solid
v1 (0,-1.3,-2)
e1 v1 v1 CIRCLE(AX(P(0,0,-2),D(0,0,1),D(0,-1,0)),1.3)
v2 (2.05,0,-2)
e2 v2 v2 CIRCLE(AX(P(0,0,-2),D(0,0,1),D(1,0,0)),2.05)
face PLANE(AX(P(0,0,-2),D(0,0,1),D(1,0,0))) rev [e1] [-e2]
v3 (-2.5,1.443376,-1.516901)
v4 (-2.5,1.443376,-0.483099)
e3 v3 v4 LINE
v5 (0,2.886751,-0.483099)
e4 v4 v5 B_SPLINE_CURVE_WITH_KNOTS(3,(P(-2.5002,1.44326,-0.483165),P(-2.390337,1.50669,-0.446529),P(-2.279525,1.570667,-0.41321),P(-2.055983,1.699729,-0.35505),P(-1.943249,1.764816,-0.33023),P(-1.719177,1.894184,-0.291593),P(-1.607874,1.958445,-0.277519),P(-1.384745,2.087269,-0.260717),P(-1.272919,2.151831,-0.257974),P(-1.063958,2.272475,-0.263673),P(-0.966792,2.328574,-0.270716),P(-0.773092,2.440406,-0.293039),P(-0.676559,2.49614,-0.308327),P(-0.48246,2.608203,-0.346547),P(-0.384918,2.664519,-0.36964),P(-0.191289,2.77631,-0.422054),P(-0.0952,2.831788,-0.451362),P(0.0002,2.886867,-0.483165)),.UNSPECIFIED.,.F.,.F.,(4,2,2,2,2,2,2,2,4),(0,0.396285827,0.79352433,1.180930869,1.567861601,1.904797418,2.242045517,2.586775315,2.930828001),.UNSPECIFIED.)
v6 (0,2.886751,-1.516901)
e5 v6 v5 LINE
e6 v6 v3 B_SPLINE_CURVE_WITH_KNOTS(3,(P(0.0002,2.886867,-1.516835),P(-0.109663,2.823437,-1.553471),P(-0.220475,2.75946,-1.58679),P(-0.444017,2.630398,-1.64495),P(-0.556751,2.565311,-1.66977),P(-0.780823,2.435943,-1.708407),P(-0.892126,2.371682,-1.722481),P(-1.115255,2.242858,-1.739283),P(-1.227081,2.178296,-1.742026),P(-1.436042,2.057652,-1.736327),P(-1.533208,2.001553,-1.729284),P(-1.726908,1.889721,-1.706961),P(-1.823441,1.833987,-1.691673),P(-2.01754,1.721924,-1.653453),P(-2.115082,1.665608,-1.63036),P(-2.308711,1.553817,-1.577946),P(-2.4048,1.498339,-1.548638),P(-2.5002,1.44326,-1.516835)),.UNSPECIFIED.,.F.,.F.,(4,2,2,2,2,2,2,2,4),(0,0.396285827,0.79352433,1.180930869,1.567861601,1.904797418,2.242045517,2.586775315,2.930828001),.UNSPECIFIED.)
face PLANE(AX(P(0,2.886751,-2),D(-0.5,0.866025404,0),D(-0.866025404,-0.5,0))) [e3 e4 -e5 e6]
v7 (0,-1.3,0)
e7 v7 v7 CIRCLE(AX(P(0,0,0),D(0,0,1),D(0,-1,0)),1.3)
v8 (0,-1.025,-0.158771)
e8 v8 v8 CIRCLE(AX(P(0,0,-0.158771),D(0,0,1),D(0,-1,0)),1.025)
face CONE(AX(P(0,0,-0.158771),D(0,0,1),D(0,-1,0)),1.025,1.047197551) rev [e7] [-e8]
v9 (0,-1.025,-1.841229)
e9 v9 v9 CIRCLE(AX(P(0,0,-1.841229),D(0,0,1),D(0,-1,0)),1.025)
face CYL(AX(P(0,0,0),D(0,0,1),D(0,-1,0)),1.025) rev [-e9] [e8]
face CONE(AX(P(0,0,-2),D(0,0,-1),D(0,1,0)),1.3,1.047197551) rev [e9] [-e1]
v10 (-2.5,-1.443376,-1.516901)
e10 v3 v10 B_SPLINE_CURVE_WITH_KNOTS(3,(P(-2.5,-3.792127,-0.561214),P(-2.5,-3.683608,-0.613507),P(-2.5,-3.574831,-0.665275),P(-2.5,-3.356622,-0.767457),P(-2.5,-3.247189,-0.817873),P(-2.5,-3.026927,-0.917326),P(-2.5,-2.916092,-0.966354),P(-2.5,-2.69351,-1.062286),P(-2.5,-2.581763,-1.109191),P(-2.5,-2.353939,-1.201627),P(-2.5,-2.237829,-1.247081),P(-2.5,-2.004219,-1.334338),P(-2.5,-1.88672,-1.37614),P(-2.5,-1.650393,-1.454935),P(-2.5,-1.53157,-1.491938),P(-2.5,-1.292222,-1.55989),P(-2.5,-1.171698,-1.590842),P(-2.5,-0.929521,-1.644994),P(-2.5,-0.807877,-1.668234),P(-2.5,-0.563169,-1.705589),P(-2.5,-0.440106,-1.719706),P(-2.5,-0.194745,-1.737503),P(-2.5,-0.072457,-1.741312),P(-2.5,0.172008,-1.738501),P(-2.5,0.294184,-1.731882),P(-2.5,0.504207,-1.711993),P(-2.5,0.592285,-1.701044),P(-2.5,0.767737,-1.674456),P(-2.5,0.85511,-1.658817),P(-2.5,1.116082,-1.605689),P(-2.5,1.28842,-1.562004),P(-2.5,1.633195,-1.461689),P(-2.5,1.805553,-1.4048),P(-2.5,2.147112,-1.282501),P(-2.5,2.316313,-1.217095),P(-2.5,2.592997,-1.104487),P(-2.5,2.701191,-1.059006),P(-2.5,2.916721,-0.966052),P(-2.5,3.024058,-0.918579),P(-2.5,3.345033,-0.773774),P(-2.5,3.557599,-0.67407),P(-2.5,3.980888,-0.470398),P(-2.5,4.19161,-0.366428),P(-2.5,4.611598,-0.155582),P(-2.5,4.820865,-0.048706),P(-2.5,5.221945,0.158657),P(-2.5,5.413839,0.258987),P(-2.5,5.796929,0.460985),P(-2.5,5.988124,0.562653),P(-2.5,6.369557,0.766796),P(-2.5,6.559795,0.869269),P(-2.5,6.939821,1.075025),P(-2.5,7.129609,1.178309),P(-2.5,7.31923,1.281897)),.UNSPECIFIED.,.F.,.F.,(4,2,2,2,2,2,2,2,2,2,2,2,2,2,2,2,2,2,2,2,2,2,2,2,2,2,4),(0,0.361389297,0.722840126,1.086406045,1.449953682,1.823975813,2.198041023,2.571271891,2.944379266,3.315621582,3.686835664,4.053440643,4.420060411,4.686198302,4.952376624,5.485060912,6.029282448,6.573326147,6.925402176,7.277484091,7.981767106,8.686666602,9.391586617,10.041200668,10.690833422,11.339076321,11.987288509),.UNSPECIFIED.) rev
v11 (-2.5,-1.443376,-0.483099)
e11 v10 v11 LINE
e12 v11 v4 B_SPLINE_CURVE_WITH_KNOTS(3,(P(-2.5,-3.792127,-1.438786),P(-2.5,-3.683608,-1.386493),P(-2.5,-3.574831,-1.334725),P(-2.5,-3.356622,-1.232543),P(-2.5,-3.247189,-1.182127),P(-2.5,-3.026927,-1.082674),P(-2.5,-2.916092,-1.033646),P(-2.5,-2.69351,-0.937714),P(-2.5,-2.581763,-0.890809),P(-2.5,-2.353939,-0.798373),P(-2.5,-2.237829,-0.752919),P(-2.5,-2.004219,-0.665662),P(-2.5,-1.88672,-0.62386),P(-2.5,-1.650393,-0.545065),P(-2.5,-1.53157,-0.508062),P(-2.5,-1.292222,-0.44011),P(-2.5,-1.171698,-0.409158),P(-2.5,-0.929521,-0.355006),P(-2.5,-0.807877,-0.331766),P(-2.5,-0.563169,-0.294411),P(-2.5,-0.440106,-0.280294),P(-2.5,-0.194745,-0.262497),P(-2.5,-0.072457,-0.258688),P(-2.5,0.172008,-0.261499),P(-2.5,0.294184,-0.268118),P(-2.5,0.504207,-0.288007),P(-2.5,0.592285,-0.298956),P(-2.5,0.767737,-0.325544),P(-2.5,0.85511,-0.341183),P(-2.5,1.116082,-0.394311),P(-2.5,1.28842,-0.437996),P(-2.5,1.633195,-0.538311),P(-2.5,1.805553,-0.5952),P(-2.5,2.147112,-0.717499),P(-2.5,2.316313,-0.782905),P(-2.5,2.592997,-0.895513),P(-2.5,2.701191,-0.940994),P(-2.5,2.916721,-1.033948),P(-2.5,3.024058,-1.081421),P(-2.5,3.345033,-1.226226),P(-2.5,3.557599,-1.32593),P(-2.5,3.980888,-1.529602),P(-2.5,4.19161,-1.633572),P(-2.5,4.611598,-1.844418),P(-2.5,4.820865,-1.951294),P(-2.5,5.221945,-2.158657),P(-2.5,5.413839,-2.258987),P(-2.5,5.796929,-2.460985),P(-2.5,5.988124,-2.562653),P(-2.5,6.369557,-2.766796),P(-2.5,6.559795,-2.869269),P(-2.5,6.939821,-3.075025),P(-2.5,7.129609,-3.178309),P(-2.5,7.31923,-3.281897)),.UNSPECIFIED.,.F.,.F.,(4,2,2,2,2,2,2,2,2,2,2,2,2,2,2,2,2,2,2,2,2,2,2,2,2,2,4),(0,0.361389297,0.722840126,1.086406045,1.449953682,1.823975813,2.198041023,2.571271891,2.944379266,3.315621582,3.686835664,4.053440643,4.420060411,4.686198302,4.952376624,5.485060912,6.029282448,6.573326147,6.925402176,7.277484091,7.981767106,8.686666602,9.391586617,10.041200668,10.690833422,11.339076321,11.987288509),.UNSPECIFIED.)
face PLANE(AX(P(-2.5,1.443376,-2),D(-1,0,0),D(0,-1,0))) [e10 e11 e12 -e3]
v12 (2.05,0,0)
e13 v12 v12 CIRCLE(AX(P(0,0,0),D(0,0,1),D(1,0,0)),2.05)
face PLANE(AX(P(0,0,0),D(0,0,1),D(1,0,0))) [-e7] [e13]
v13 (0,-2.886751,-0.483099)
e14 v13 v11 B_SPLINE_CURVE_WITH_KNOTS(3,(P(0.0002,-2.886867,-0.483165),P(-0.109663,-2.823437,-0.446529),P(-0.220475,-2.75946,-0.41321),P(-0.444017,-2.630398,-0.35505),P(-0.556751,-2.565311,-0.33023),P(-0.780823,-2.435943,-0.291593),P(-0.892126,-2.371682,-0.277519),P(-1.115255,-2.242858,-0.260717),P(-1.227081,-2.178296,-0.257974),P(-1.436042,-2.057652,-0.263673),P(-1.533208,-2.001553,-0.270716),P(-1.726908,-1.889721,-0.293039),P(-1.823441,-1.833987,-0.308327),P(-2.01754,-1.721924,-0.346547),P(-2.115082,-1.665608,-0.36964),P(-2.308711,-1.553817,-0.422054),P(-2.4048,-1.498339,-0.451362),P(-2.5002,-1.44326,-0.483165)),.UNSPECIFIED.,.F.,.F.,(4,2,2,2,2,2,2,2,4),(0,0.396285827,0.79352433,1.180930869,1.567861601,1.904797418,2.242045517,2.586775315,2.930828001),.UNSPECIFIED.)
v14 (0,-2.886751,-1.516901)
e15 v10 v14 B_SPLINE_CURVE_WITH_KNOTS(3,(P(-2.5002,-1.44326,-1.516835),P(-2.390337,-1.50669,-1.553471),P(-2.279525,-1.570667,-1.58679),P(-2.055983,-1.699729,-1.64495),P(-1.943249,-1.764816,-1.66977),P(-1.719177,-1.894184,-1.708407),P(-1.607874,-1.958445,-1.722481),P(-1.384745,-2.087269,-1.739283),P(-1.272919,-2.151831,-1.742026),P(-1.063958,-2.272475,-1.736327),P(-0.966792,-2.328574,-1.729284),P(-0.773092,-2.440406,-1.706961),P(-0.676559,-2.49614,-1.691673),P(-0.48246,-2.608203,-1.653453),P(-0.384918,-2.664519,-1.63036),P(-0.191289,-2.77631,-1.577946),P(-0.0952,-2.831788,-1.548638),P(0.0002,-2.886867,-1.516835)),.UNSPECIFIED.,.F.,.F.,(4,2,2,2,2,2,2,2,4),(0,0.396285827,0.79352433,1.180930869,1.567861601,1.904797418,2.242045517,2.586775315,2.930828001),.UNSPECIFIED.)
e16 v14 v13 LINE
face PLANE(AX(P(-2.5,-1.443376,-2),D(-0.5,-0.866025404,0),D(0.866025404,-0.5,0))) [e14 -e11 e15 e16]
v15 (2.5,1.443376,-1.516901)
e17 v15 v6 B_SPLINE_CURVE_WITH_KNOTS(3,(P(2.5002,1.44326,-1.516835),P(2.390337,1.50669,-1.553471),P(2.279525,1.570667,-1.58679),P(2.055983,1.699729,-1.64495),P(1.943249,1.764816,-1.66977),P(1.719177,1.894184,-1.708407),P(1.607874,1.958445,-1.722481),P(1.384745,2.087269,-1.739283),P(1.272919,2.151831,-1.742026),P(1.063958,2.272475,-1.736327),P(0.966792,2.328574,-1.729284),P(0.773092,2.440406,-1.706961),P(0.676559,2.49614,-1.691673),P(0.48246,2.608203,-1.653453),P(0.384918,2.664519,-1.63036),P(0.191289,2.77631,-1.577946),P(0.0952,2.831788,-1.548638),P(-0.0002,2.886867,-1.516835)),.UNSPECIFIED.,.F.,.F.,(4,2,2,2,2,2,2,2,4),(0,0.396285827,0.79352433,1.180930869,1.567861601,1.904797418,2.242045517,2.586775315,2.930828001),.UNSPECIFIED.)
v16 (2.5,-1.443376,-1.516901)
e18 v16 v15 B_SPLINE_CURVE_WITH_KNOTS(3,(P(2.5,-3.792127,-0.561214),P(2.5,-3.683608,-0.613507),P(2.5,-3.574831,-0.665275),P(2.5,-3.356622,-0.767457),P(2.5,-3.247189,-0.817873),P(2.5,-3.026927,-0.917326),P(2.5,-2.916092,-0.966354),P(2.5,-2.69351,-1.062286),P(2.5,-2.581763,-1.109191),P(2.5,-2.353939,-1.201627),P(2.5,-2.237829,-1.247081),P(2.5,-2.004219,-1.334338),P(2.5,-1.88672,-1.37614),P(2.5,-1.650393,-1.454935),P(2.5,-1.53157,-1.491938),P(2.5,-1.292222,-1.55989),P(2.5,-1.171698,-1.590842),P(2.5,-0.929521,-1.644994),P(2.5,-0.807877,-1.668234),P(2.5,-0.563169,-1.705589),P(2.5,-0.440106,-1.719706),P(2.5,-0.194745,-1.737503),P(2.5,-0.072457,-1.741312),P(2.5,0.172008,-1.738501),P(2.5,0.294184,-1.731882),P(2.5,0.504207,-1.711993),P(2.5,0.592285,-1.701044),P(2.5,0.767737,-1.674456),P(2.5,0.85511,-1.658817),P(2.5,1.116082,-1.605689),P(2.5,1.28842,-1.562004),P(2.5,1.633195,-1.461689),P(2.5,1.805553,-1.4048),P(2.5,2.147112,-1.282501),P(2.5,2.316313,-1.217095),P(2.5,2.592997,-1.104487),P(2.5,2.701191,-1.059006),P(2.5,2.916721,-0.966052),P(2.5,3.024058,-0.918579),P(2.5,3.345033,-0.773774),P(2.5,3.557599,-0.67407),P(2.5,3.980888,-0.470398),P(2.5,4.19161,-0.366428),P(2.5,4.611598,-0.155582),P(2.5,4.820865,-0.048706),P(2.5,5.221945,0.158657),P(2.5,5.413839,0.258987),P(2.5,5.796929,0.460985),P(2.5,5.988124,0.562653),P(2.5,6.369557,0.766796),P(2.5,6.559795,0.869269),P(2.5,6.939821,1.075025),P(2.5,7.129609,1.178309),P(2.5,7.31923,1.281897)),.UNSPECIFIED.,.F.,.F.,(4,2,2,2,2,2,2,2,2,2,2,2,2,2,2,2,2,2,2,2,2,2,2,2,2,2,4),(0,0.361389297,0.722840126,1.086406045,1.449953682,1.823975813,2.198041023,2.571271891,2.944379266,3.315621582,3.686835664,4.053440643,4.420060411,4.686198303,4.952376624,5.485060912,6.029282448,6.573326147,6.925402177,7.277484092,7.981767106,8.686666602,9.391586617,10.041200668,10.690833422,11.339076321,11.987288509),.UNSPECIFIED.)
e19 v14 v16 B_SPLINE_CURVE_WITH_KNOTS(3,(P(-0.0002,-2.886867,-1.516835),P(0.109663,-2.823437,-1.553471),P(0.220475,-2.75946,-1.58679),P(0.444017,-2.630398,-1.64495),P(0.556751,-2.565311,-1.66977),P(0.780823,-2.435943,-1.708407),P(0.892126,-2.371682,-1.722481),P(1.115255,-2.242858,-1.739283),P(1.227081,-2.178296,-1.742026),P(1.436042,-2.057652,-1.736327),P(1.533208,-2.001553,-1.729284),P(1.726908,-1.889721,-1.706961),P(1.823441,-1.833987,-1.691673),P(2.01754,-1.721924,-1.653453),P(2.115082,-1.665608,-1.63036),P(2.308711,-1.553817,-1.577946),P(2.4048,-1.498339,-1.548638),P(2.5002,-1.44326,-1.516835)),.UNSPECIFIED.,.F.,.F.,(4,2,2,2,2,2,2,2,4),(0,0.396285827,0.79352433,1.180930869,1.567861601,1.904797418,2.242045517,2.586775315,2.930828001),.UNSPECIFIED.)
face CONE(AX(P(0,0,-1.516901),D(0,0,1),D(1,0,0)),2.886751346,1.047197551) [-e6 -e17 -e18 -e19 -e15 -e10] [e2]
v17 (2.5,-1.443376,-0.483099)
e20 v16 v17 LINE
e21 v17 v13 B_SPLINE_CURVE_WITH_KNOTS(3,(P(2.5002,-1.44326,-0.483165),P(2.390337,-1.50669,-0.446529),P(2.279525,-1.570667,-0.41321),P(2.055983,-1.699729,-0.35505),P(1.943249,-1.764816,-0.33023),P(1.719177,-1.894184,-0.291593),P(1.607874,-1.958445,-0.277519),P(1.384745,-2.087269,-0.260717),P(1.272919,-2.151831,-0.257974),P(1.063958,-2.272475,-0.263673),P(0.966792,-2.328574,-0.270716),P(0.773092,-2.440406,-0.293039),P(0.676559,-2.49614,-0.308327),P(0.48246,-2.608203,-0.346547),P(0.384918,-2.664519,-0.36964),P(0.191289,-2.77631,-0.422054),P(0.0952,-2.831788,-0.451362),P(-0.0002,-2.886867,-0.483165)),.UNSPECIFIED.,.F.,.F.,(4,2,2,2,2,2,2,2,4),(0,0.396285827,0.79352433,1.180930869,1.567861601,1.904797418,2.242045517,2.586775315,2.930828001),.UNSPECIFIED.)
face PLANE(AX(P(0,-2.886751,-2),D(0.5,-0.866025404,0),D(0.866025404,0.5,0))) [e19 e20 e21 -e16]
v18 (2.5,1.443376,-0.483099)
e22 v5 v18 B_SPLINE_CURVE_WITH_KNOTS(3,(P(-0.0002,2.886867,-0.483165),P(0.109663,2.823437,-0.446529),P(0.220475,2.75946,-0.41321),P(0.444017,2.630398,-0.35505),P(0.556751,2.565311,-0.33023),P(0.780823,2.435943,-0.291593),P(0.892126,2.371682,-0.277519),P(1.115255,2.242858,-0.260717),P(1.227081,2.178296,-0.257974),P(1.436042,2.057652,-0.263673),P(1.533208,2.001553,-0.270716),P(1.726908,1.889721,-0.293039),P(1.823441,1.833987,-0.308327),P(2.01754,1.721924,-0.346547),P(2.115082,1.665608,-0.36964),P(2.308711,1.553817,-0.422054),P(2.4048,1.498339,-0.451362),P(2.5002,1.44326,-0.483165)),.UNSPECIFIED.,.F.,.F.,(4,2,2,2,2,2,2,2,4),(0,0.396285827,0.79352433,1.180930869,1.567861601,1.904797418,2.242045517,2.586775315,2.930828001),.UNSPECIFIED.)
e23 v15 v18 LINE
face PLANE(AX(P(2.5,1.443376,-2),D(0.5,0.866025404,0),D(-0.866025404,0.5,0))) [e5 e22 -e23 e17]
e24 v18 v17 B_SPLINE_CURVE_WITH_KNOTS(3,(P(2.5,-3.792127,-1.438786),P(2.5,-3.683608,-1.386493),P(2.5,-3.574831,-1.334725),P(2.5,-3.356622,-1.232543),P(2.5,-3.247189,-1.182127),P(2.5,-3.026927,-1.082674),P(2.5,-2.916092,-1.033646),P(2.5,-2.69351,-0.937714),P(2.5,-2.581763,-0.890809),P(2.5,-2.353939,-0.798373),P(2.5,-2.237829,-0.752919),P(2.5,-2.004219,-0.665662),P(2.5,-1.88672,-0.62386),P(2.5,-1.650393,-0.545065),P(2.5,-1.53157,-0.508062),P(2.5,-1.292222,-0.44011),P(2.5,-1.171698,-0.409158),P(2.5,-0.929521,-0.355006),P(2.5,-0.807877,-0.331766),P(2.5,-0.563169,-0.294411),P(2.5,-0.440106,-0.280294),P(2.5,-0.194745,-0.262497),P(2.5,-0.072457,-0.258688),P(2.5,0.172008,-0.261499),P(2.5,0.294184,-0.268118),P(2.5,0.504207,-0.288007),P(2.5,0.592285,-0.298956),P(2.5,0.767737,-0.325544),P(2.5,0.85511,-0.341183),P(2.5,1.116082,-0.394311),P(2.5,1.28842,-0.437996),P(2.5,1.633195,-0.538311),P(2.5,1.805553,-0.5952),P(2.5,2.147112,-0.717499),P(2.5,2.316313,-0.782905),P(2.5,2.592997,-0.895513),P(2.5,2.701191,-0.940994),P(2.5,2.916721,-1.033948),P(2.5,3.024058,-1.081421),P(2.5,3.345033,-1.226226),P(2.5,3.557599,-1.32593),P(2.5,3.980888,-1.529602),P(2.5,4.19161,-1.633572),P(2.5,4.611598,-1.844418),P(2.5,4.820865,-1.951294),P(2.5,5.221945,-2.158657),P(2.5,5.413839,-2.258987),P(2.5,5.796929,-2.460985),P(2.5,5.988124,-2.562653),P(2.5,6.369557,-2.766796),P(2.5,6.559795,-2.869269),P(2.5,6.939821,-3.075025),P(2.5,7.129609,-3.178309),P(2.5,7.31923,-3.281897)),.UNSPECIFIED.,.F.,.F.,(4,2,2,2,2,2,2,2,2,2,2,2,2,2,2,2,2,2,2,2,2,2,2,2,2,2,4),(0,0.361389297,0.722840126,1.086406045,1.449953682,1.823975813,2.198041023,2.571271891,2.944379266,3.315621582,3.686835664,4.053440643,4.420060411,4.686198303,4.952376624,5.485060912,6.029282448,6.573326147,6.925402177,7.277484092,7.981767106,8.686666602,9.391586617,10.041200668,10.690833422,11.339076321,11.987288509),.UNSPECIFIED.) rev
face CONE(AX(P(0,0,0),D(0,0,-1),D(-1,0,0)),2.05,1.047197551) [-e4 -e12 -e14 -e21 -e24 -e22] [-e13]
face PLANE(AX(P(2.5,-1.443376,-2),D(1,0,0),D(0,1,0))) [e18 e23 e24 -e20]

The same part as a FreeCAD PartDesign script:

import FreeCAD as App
import Part
import Sketcher

V = App.Vector
Q = App.Units.Quantity


def add_polygon(sketch, points):
    """Adds a closed chain of lines whose ends are joined by coincident constraints."""
    first, n = sketch.GeometryCount, len(points)
    for a, b in zip(points, points[1:] + points[:1]):
        sketch.addGeometry(Part.LineSegment(App.Vector(*a, 0), App.Vector(*b, 0)), False)
    for i in range(n):
        sketch.addConstraint(Sketcher.Constraint("Coincident", first + i, 2, first + (i + 1) % n, 1))

doc = App.newDocument("Part")
body = doc.addObject("PartDesign::Body", "Body")

# Sketch on XY plane
sketch1 = doc.addObject("Sketcher::SketchObject", "Sketch")
body.addObject(sketch1)
sketch1.AttachmentSupport = (doc.XY_Plane, [""])
sketch1.MapMode = "FlatFace"
add_polygon(sketch1, [(0, 2.9), (-2.5, 1.4), (-2.5, -1.4), (0, -2.9), (2.5, -1.4), (2.5, 1.4)])  # lines 0-5
sketch1.addConstraint([
    Sketcher.Constraint("Vertical", 1),
    Sketcher.Constraint("Vertical", 4),
    Sketcher.Constraint("Symmetric", 0, 2, 3, 2, -1, 1),
    Sketcher.Constraint("Symmetric", 2, 2, 5, 2, -1, 1),
    Sketcher.Constraint("PointOnObject", 2, 2, -2),
    Sketcher.Constraint("Parallel", 2, 5),
    Sketcher.Constraint("Horizontal", 1, 2, 3, 2),
    Sketcher.Constraint("Angle", 0, Q("-150 deg")),
    Sketcher.Constraint("DistanceX", 1, 2, 3, 2, Q("5 mm")),
    Sketcher.Constraint("DistanceY", 1, 2, 1, 1, Q("2.886751 mm")),
])
pad1 = doc.addObject("PartDesign::Pad", "Pad")
body.addObject(pad1)
pad1.Profile = sketch1
pad1.Length = 2
pad1.Reversed = True

# Sketch on YZ plane
sketch2 = doc.addObject("Sketcher::SketchObject", "Sketch001")
body.addObject(sketch2)
sketch2.AttachmentSupport = (doc.YZ_Plane, [""])
sketch2.MapMode = "FlatFace"
add_polygon(sketch2, [(2.89, -2), (2.89, -1.52), (2.05, -2)])  # lines 0-2
add_polygon(sketch2, [(2.89, -0.48), (2.89, 0), (2.05, 0)])  # lines 3-5
sketch2.addConstraint([
    Sketcher.Constraint("Vertical", 0),
    Sketcher.Constraint("Horizontal", 2),
    Sketcher.Constraint("Vertical", 3),
    Sketcher.Constraint("Horizontal", 4),
    Sketcher.Constraint("PointOnObject", 3, 2, -1),
    Sketcher.Constraint("Vertical", 2, 2, 3, 2),
    Sketcher.Constraint("Vertical", 1, 2, 4, 2),
    Sketcher.Constraint("Equal", 0, 3),
    Sketcher.Constraint("Angle", 1, Q("-150 deg")),
    Sketcher.Constraint("DistanceY", 1, 2, -1, 1, Q("2 mm")),
    Sketcher.Constraint("DistanceX", -1, 1, 1, 2, Q("2.05 mm")),
    Sketcher.Constraint("DistanceY", 0, 1, 0, 2, Q("0.483099 mm")),
])
groove = doc.addObject("PartDesign::Groove", "Groove")
body.addObject(groove)
groove.Profile = sketch2
groove.ReferenceAxis = (sketch2, ["V_Axis"])
groove.Angle = 360

# Sketch on YZ plane
sketch3 = doc.addObject("Sketcher::SketchObject", "Sketch002")
body.addObject(sketch3)
sketch3.AttachmentSupport = (doc.YZ_Plane, [""])
sketch3.MapMode = "FlatFace"
add_polygon(sketch3, [(1.3, 0), (0, 0), (0, -2), (1.3, -2), (1.02, -1.84), (1.02, -0.16)])  # lines 0-5
sketch3.addConstraint([
    Sketcher.Constraint("Horizontal", 0),
    Sketcher.Constraint("Vertical", 1),
    Sketcher.Constraint("Horizontal", 2),
    Sketcher.Constraint("Vertical", 4),
    Sketcher.Constraint("Coincident", 0, 2, -1, 1),
    Sketcher.Constraint("Vertical", 2, 2, 5, 2),
    Sketcher.Constraint("Equal", 3, 5),
    Sketcher.Constraint("DistanceY", 1, 2, 1, 1, Q("2 mm")),
    Sketcher.Constraint("Angle", 3, Q("150 deg")),
    Sketcher.Constraint("DistanceX", 0, 2, 0, 1, Q("1.3 mm")),
    Sketcher.Constraint("DistanceX", -1, 1, 3, 2, Q("1.025 mm")),
])
groove2 = doc.addObject("PartDesign::Groove", "Groove001")
body.addObject(groove2)
groove2.Profile = sketch3
groove2.ReferenceAxis = (sketch3, ["V_Axis"])
groove2.Angle = 360

doc.recompute()
